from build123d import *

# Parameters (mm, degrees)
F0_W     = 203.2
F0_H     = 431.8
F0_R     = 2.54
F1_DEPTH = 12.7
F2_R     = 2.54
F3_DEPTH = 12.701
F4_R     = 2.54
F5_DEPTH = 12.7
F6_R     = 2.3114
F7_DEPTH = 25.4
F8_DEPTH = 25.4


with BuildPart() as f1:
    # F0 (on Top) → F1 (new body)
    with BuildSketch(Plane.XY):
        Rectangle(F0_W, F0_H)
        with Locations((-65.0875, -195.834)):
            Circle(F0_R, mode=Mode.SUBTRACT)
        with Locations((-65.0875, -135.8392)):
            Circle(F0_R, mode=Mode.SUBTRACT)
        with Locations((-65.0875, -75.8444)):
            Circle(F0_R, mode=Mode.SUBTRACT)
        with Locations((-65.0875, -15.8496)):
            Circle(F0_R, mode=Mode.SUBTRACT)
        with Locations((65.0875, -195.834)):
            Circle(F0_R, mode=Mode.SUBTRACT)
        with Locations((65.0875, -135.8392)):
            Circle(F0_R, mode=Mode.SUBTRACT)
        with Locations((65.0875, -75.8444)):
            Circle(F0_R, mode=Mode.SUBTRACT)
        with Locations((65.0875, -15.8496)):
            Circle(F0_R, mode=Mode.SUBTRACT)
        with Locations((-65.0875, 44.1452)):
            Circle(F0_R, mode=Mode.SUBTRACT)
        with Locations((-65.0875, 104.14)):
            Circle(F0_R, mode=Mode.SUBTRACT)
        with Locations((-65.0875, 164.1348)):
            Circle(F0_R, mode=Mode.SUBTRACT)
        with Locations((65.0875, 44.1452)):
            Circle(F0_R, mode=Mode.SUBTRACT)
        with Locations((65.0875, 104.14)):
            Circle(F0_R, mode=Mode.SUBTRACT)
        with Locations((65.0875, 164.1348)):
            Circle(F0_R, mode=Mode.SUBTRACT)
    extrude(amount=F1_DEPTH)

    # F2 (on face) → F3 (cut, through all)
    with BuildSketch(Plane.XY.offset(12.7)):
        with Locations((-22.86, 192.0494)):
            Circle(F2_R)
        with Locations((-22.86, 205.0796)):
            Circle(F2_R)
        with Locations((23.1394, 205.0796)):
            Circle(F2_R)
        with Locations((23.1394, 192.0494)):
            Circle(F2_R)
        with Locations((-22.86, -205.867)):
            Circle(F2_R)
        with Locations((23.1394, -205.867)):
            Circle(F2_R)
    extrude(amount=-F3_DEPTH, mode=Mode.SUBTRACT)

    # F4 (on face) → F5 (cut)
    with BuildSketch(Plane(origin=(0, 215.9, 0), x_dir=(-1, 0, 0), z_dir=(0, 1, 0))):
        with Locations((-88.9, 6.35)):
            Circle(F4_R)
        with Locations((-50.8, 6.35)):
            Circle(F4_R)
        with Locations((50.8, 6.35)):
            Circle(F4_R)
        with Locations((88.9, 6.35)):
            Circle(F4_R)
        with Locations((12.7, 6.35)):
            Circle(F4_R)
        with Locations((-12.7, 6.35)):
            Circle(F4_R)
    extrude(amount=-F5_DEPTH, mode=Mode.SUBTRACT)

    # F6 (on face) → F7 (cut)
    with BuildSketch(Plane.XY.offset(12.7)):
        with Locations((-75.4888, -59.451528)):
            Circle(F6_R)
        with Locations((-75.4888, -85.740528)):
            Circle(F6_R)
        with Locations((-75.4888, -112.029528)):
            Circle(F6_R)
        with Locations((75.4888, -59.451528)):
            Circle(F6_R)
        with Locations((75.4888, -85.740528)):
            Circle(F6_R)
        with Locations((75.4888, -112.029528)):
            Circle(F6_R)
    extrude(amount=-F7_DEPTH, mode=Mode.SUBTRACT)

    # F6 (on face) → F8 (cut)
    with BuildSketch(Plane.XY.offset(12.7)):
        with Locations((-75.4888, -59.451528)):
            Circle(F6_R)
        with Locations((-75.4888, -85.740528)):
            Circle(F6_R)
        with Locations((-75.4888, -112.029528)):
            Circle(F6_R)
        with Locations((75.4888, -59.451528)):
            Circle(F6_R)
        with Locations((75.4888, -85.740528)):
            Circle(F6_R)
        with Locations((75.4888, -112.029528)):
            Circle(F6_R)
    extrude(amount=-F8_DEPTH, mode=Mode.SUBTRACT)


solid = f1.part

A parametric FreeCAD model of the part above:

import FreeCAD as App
import Part
import Sketcher

V = App.Vector
Q = App.Units.Quantity


def add_polygon(sketch, points):
    """Adds a closed chain of lines whose ends are joined by coincident constraints."""
    first, n = sketch.GeometryCount, len(points)
    for a, b in zip(points, points[1:] + points[:1]):
        sketch.addGeometry(Part.LineSegment(App.Vector(*a, 0), App.Vector(*b, 0)), False)
    for i in range(n):
        sketch.addConstraint(Sketcher.Constraint("Coincident", first + i, 2, first + (i + 1) % n, 1))

doc = App.newDocument("Part")
body = doc.addObject("PartDesign::Body", "Body")

# Sketch on XY plane
sketch1 = doc.addObject("Sketcher::SketchObject", "Sketch")
body.addObject(sketch1)
sketch1.AttachmentSupport = (doc.XY_Plane, [""])
sketch1.MapMode = "FlatFace"
add_polygon(sketch1, [(-101.6, 215.9), (-101.6, -215.9), (101.6, -215.9), (101.6, 215.9)])  # lines 0-3
sketch1.addGeometry(Part.Circle(V(-65.1, -195.8, 0), V(0, 0, 1), 2.5), False)  # 4
sketch1.addGeometry(Part.Circle(V(-65.1, -135.8, 0), V(0, 0, 1), 2.5), False)  # 5
sketch1.addGeometry(Part.Circle(V(-65.1, -75.8, 0), V(0, 0, 1), 2.5), False)  # 6
sketch1.addGeometry(Part.Circle(V(65.1, -195.8, 0), V(0, 0, 1), 2.5), False)  # 7
sketch1.addGeometry(Part.Circle(V(65.1, -135.8, 0), V(0, 0, 1), 2.5), False)  # 8
sketch1.addGeometry(Part.Circle(V(65.1, -75.8, 0), V(0, 0, 1), 2.5), False)  # 9
sketch1.addGeometry(Part.Circle(V(-65.1, -15.8, 0), V(0, 0, 1), 2.5), False)  # 10
sketch1.addGeometry(Part.Circle(V(-65.1, 44.1, 0), V(0, 0, 1), 2.5), False)  # 11
sketch1.addGeometry(Part.Circle(V(-65.1, 104.1, 0), V(0, 0, 1), 2.5), False)  # 12
sketch1.addGeometry(Part.Circle(V(-65.1, 164.1, 0), V(0, 0, 1), 2.5), False)  # 13
sketch1.addGeometry(Part.Circle(V(65.1, -15.8, 0), V(0, 0, 1), 2.5), False)  # 14
sketch1.addGeometry(Part.Circle(V(65.1, 44.1, 0), V(0, 0, 1), 2.5), False)  # 15
sketch1.addGeometry(Part.Circle(V(65.1, 104.1, 0), V(0, 0, 1), 2.5), False)  # 16
sketch1.addGeometry(Part.Circle(V(65.1, 164.1, 0), V(0, 0, 1), 2.5), False)  # 17
sketch1.addConstraint(Sketcher.Constraint("Vertical", 0))
sketch1.addConstraint(Sketcher.Constraint("Horizontal", 1))
sketch1.addConstraint(Sketcher.Constraint("Vertical", 2))
sketch1.addConstraint(Sketcher.Constraint("Horizontal", 3))
sketch1.addConstraint(Sketcher.Constraint("Equal", 4, 5))
sketch1.addConstraint(Sketcher.Constraint("Equal", 5, 6))
sketch1.addConstraint(Sketcher.Constraint("Equal", 6, 7))
sketch1.addConstraint(Sketcher.Constraint("Equal", 7, 8))
sketch1.addConstraint(Sketcher.Constraint("Equal", 8, 9))
sketch1.addConstraint(Sketcher.Constraint("Equal", 9, 10))
sketch1.addConstraint(Sketcher.Constraint("Equal", 10, 11))
sketch1.addConstraint(Sketcher.Constraint("Equal", 11, 12))
sketch1.addConstraint(Sketcher.Constraint("Equal", 12, 13))
sketch1.addConstraint(Sketcher.Constraint("Equal", 13, 14))
sketch1.addConstraint(Sketcher.Constraint("Equal", 14, 15))
sketch1.addConstraint(Sketcher.Constraint("Equal", 15, 16))
sketch1.addConstraint(Sketcher.Constraint("Equal", 16, 17))
sketch1.addConstraint(Sketcher.Constraint("Symmetric", 0, 2, 2, 2, -1, 1))
sketch1.addConstraint(Sketcher.Constraint("Symmetric", 4, 3, 7, 3, -2))
sketch1.addConstraint(Sketcher.Constraint("Symmetric", 5, 3, 8, 3, -2))
sketch1.addConstraint(Sketcher.Constraint("Symmetric", 6, 3, 9, 3, -2))
sketch1.addConstraint(Sketcher.Constraint("Symmetric", 10, 3, 14, 3, -2))
sketch1.addConstraint(Sketcher.Constraint("Symmetric", 11, 3, 15, 3, -2))
sketch1.addConstraint(Sketcher.Constraint("Symmetric", 12, 3, 16, 3, -2))
sketch1.addConstraint(Sketcher.Constraint("Symmetric", 13, 3, 17, 3, -2))
sketch1.addConstraint(Sketcher.Constraint("Vertical", 4, 3, 5, 3))
sketch1.addConstraint(Sketcher.Constraint("Vertical", 5, 3, 6, 3))
sketch1.addConstraint(Sketcher.Constraint("Vertical", 6, 3, 10, 3))
sketch1.addConstraint(Sketcher.Constraint("Vertical", 10, 3, 11, 3))
sketch1.addConstraint(Sketcher.Constraint("Vertical", 11, 3, 12, 3))
sketch1.addConstraint(Sketcher.Constraint("Vertical", 12, 3, 13, 3))
sketch1.addConstraint(Sketcher.Constraint("Diameter", 4, Q("0.2 in")))
sketch1.addConstraint(Sketcher.Constraint("DistanceX", 1, 1, 1, 2, Q("8 in")))
sketch1.addConstraint(Sketcher.Constraint("DistanceY", 0, 2, 0, 1, Q("17 in")))
sketch1.addConstraint(Sketcher.Constraint("DistanceY", -1, 1, 12, 3, Q("4.1 in")))
sketch1.addConstraint(Sketcher.Constraint("DistanceY", 4, 3, -1, 1, Q("7.71 in")))
sketch1.addConstraint(Sketcher.Constraint("DistanceX", 4, 3, -1, 1, Q("2.5625 in")))
sketch1.addConstraint(Sketcher.Constraint("DistanceY", 5, 3, -1, 1, Q("5.348 in")))
sketch1.addConstraint(Sketcher.Constraint("DistanceY", 6, 3, -1, 1, Q("2.986 in")))
sketch1.addConstraint(Sketcher.Constraint("DistanceY", 10, 3, -1, 1, Q("0.624 in")))
sketch1.addConstraint(Sketcher.Constraint("DistanceY", -1, 1, 11, 3, Q("1.738 in")))
sketch1.addConstraint(Sketcher.Constraint("DistanceY", -1, 1, 13, 3, Q("6.462 in")))
pad1 = doc.addObject("PartDesign::Pad", "Pad")
body.addObject(pad1)
pad1.Profile = sketch1
pad1.Length = Q("0.5 in")

# Sketch on XY plane
sketch2 = doc.addObject("Sketcher::SketchObject", "Sketch001")
body.addObject(sketch2)
sketch2.AttachmentSupport = (doc.XY_Plane, [""])
sketch2.MapMode = "FlatFace"
sketch2.AttachmentOffset = App.Placement(V(0, 0, 0.5 * 25.4), App.Rotation())
sketch2.addGeometry(Part.Circle(V(-22.9, 192, 0), V(0, 0, 1), 2.5), False)
sketch2.addGeometry(Part.Circle(V(-22.9, 205.1, 0), V(0, 0, 1), 2.5), False)
sketch2.addGeometry(Part.Circle(V(23.1, 205.1, 0), V(0, 0, 1), 2.5), False)
sketch2.addGeometry(Part.Circle(V(23.1, 192, 0), V(0, 0, 1), 2.5), False)
sketch2.addGeometry(Part.Circle(V(-22.9, -205.9, 0), V(0, 0, 1), 2.5), False)
sketch2.addGeometry(Part.Circle(V(23.1, -205.9, 0), V(0, 0, 1), 2.5), False)
sketch2.addConstraint(Sketcher.Constraint("Equal", 0, 1))
sketch2.addConstraint(Sketcher.Constraint("Equal", 1, 2))
sketch2.addConstraint(Sketcher.Constraint("Equal", 2, 3))
sketch2.addConstraint(Sketcher.Constraint("Equal", 3, 4))
sketch2.addConstraint(Sketcher.Constraint("Equal", 4, 5))
sketch2.addConstraint(Sketcher.Constraint("Horizontal", 1, 3, 2, 3))
sketch2.addConstraint(Sketcher.Constraint("Horizontal", 0, 3, 3, 3))
sketch2.addConstraint(Sketcher.Constraint("Horizontal", 4, 3, 5, 3))
sketch2.addConstraint(Sketcher.Constraint("Vertical", 0, 3, 1, 3))
sketch2.addConstraint(Sketcher.Constraint("Vertical", 2, 3, 3, 3))
sketch2.addConstraint(Sketcher.Constraint("Vertical", 1, 3, 4, 3))
sketch2.addConstraint(Sketcher.Constraint("Vertical", 3, 3, 5, 3))
sketch2.addConstraint(Sketcher.Constraint("Diameter", 0, Q("0.2 in")))
sketch2.addConstraint(Sketcher.Constraint("DistanceX", 0, 3, -1, 1, Q("0.9 in")))
sketch2.addConstraint(Sketcher.Constraint("DistanceY", -1, 1, 0, 3, Q("7.561 in")))
sketch2.addConstraint(Sketcher.Constraint("DistanceY", -1, 1, 1, 3, Q("8.074 in")))
sketch2.addConstraint(Sketcher.Constraint("DistanceX", -1, 1, 2, 3, Q("0.911 in")))
sketch2.addConstraint(Sketcher.Constraint("DistanceY", 4, 3, -1, 1, Q("8.105 in")))
pocket1 = doc.addObject("PartDesign::Pocket", "Pocket")
body.addObject(pocket1)
pocket1.Profile = sketch2
pocket1.Type = "ThroughAll"

# Sketch on XZ plane
sketch3 = doc.addObject("Sketcher::SketchObject", "Sketch002")
body.addObject(sketch3)
sketch3.AttachmentSupport = (doc.XZ_Plane, [""])
sketch3.MapMode = "FlatFace"
sketch3.AttachmentOffset = App.Placement(V(0, 0, -8.5 * 25.4), App.Rotation())
sketch3.addGeometry(Part.Circle(V(88.9, 6.3, 0), V(0, 0, 1), 2.5), False)
sketch3.addGeometry(Part.Circle(V(50.8, 6.3, 0), V(0, 0, 1), 2.5), False)
sketch3.addGeometry(Part.Circle(V(-50.8, 6.3, 0), V(0, 0, 1), 2.5), False)
sketch3.addGeometry(Part.Circle(V(-88.9, 6.3, 0), V(0, 0, 1), 2.5), False)
sketch3.addGeometry(Part.Circle(V(-12.7, 6.3, 0), V(0, 0, 1), 2.5), False)
sketch3.addGeometry(Part.Circle(V(12.7, 6.3, 0), V(0, 0, 1), 2.5), False)
sketch3.addConstraint(Sketcher.Constraint("Equal", 0, 1))
sketch3.addConstraint(Sketcher.Constraint("Equal", 1, 2))
sketch3.addConstraint(Sketcher.Constraint("Equal", 2, 3))
sketch3.addConstraint(Sketcher.Constraint("Equal", 3, 4))
sketch3.addConstraint(Sketcher.Constraint("Equal", 4, 5))
sketch3.addConstraint(Sketcher.Constraint("Symmetric", 1, 3, 2, 3, -2))
sketch3.addConstraint(Sketcher.Constraint("Symmetric", 0, 3, 3, 3, -2))
sketch3.addConstraint(Sketcher.Constraint("Symmetric", 4, 3, 5, 3, -2))
sketch3.addConstraint(Sketcher.Constraint("Horizontal", 0, 3, 1, 3))
sketch3.addConstraint(Sketcher.Constraint("Horizontal", 3, 3, 4, 3))
sketch3.addConstraint(Sketcher.Constraint("Diameter", 0, Q("0.2 in")))
sketch3.addConstraint(Sketcher.Constraint("DistanceX", -1, 1, 1, 3, Q("2 in")))
sketch3.addConstraint(Sketcher.Constraint("DistanceX", 3, 3, 0, 3, Q("7 in")))
sketch3.addConstraint(Sketcher.Constraint("DistanceX", 3, 3, 4, 3, Q("3 in")))
sketch3.addConstraint(Sketcher.Constraint("DistanceY", -1, 1, 0, 3, Q("0.25 in")))
pocket2 = doc.addObject("PartDesign::Pocket", "Pocket001")
body.addObject(pocket2)
pocket2.Profile = sketch3
pocket2.Length = Q("0.5 in")
pocket2.Reversed = True

# Sketch on XY plane
sketch4 = doc.addObject("Sketcher::SketchObject", "Sketch003")
body.addObject(sketch4)
sketch4.AttachmentSupport = (doc.XY_Plane, [""])
sketch4.MapMode = "FlatFace"
sketch4.AttachmentOffset = App.Placement(V(0, 0, 0.5 * 25.4), App.Rotation())
sketch4.addGeometry(Part.Circle(V(-75.5, -59.5, 0), V(0, 0, 1), 2.3), False)
sketch4.addGeometry(Part.Circle(V(-75.5, -85.7, 0), V(0, 0, 1), 2.3), False)
sketch4.addGeometry(Part.Circle(V(-75.5, -112, 0), V(0, 0, 1), 2.3), False)
sketch4.addGeometry(Part.Circle(V(75.5, -59.5, 0), V(0, 0, 1), 2.3), False)
sketch4.addGeometry(Part.Circle(V(75.5, -85.7, 0), V(0, 0, 1), 2.3), False)
sketch4.addGeometry(Part.Circle(V(75.5, -112, 0), V(0, 0, 1), 2.3), False)
sketch4.addConstraint(Sketcher.Constraint("Equal", 0, 1))
sketch4.addConstraint(Sketcher.Constraint("Equal", 1, 2))
sketch4.addConstraint(Sketcher.Constraint("Equal", 2, 3))
sketch4.addConstraint(Sketcher.Constraint("Equal", 3, 4))
sketch4.addConstraint(Sketcher.Constraint("Equal", 4, 5))
sketch4.addConstraint(Sketcher.Constraint("Symmetric", 0, 3, 3, 3, -2))
sketch4.addConstraint(Sketcher.Constraint("Symmetric", 1, 3, 4, 3, -2))
sketch4.addConstraint(Sketcher.Constraint("Symmetric", 2, 3, 5, 3, -2))
sketch4.addConstraint(Sketcher.Constraint("Vertical", 0, 3, 1, 3))
sketch4.addConstraint(Sketcher.Constraint("Vertical", 1, 3, 2, 3))
sketch4.addConstraint(Sketcher.Constraint("Diameter", 0, Q("0.182 in")))
sketch4.addConstraint(Sketcher.Constraint("DistanceY", 2, 3, 0, 3, Q("2.07 in")))
sketch4.addConstraint(Sketcher.Constraint("DistanceX", 0, 3, -1, 1, Q("2.972 in")))
sketch4.addConstraint(Sketcher.Constraint("DistanceY", 1, 3, 0, 3, Q("1.035 in")))
sketch4.addConstraint(Sketcher.Constraint("DistanceY", 0, 3, -1, 1, Q("59.451528 mm")))
pocket3 = doc.addObject("PartDesign::Pocket", "Pocket002")
body.addObject(pocket3)
pocket3.Profile = sketch4
pocket3.Length = Q("1 in")

# Sketch on XY plane
sketch5 = doc.addObject("Sketcher::SketchObject", "Sketch004")
body.addObject(sketch5)
sketch5.AttachmentSupport = (doc.XY_Plane, [""])
sketch5.MapMode = "FlatFace"
sketch5.AttachmentOffset = App.Placement(V(0, 0, 0.5 * 25.4), App.Rotation())
sketch5.addGeometry(Part.Circle(V(-75.5, -59.5, 0), V(0, 0, 1), 2.3), False)
sketch5.addGeometry(Part.Circle(V(-75.5, -85.7, 0), V(0, 0, 1), 2.3), False)
sketch5.addGeometry(Part.Circle(V(-75.5, -112, 0), V(0, 0, 1), 2.3), False)
sketch5.addGeometry(Part.Circle(V(75.5, -59.5, 0), V(0, 0, 1), 2.3), False)
sketch5.addGeometry(Part.Circle(V(75.5, -85.7, 0), V(0, 0, 1), 2.3), False)
sketch5.addGeometry(Part.Circle(V(75.5, -112, 0), V(0, 0, 1), 2.3), False)
sketch5.addConstraint(Sketcher.Constraint("Equal", 0, 1))
sketch5.addConstraint(Sketcher.Constraint("Equal", 1, 2))
sketch5.addConstraint(Sketcher.Constraint("Equal", 2, 3))
sketch5.addConstraint(Sketcher.Constraint("Equal", 3, 4))
sketch5.addConstraint(Sketcher.Constraint("Equal", 4, 5))
sketch5.addConstraint(Sketcher.Constraint("Symmetric", 0, 3, 3, 3, -2))
sketch5.addConstraint(Sketcher.Constraint("Symmetric", 1, 3, 4, 3, -2))
sketch5.addConstraint(Sketcher.Constraint("Symmetric", 2, 3, 5, 3, -2))
sketch5.addConstraint(Sketcher.Constraint("Vertical", 0, 3, 1, 3))
sketch5.addConstraint(Sketcher.Constraint("Vertical", 1, 3, 2, 3))
sketch5.addConstraint(Sketcher.Constraint("Diameter", 0, Q("0.182 in")))
sketch5.addConstraint(Sketcher.Constraint("DistanceY", 2, 3, 0, 3, Q("2.07 in")))
sketch5.addConstraint(Sketcher.Constraint("DistanceX", 0, 3, -1, 1, Q("2.972 in")))
sketch5.addConstraint(Sketcher.Constraint("DistanceY", 1, 3, 0, 3, Q("1.035 in")))
sketch5.addConstraint(Sketcher.Constraint("DistanceY", 0, 3, -1, 1, Q("59.451528 mm")))
pocket4 = doc.addObject("PartDesign::Pocket", "Pocket003")
body.addObject(pocket4)
pocket4.Profile = sketch5
pocket4.Length = Q("1 in")

doc.recompute()
